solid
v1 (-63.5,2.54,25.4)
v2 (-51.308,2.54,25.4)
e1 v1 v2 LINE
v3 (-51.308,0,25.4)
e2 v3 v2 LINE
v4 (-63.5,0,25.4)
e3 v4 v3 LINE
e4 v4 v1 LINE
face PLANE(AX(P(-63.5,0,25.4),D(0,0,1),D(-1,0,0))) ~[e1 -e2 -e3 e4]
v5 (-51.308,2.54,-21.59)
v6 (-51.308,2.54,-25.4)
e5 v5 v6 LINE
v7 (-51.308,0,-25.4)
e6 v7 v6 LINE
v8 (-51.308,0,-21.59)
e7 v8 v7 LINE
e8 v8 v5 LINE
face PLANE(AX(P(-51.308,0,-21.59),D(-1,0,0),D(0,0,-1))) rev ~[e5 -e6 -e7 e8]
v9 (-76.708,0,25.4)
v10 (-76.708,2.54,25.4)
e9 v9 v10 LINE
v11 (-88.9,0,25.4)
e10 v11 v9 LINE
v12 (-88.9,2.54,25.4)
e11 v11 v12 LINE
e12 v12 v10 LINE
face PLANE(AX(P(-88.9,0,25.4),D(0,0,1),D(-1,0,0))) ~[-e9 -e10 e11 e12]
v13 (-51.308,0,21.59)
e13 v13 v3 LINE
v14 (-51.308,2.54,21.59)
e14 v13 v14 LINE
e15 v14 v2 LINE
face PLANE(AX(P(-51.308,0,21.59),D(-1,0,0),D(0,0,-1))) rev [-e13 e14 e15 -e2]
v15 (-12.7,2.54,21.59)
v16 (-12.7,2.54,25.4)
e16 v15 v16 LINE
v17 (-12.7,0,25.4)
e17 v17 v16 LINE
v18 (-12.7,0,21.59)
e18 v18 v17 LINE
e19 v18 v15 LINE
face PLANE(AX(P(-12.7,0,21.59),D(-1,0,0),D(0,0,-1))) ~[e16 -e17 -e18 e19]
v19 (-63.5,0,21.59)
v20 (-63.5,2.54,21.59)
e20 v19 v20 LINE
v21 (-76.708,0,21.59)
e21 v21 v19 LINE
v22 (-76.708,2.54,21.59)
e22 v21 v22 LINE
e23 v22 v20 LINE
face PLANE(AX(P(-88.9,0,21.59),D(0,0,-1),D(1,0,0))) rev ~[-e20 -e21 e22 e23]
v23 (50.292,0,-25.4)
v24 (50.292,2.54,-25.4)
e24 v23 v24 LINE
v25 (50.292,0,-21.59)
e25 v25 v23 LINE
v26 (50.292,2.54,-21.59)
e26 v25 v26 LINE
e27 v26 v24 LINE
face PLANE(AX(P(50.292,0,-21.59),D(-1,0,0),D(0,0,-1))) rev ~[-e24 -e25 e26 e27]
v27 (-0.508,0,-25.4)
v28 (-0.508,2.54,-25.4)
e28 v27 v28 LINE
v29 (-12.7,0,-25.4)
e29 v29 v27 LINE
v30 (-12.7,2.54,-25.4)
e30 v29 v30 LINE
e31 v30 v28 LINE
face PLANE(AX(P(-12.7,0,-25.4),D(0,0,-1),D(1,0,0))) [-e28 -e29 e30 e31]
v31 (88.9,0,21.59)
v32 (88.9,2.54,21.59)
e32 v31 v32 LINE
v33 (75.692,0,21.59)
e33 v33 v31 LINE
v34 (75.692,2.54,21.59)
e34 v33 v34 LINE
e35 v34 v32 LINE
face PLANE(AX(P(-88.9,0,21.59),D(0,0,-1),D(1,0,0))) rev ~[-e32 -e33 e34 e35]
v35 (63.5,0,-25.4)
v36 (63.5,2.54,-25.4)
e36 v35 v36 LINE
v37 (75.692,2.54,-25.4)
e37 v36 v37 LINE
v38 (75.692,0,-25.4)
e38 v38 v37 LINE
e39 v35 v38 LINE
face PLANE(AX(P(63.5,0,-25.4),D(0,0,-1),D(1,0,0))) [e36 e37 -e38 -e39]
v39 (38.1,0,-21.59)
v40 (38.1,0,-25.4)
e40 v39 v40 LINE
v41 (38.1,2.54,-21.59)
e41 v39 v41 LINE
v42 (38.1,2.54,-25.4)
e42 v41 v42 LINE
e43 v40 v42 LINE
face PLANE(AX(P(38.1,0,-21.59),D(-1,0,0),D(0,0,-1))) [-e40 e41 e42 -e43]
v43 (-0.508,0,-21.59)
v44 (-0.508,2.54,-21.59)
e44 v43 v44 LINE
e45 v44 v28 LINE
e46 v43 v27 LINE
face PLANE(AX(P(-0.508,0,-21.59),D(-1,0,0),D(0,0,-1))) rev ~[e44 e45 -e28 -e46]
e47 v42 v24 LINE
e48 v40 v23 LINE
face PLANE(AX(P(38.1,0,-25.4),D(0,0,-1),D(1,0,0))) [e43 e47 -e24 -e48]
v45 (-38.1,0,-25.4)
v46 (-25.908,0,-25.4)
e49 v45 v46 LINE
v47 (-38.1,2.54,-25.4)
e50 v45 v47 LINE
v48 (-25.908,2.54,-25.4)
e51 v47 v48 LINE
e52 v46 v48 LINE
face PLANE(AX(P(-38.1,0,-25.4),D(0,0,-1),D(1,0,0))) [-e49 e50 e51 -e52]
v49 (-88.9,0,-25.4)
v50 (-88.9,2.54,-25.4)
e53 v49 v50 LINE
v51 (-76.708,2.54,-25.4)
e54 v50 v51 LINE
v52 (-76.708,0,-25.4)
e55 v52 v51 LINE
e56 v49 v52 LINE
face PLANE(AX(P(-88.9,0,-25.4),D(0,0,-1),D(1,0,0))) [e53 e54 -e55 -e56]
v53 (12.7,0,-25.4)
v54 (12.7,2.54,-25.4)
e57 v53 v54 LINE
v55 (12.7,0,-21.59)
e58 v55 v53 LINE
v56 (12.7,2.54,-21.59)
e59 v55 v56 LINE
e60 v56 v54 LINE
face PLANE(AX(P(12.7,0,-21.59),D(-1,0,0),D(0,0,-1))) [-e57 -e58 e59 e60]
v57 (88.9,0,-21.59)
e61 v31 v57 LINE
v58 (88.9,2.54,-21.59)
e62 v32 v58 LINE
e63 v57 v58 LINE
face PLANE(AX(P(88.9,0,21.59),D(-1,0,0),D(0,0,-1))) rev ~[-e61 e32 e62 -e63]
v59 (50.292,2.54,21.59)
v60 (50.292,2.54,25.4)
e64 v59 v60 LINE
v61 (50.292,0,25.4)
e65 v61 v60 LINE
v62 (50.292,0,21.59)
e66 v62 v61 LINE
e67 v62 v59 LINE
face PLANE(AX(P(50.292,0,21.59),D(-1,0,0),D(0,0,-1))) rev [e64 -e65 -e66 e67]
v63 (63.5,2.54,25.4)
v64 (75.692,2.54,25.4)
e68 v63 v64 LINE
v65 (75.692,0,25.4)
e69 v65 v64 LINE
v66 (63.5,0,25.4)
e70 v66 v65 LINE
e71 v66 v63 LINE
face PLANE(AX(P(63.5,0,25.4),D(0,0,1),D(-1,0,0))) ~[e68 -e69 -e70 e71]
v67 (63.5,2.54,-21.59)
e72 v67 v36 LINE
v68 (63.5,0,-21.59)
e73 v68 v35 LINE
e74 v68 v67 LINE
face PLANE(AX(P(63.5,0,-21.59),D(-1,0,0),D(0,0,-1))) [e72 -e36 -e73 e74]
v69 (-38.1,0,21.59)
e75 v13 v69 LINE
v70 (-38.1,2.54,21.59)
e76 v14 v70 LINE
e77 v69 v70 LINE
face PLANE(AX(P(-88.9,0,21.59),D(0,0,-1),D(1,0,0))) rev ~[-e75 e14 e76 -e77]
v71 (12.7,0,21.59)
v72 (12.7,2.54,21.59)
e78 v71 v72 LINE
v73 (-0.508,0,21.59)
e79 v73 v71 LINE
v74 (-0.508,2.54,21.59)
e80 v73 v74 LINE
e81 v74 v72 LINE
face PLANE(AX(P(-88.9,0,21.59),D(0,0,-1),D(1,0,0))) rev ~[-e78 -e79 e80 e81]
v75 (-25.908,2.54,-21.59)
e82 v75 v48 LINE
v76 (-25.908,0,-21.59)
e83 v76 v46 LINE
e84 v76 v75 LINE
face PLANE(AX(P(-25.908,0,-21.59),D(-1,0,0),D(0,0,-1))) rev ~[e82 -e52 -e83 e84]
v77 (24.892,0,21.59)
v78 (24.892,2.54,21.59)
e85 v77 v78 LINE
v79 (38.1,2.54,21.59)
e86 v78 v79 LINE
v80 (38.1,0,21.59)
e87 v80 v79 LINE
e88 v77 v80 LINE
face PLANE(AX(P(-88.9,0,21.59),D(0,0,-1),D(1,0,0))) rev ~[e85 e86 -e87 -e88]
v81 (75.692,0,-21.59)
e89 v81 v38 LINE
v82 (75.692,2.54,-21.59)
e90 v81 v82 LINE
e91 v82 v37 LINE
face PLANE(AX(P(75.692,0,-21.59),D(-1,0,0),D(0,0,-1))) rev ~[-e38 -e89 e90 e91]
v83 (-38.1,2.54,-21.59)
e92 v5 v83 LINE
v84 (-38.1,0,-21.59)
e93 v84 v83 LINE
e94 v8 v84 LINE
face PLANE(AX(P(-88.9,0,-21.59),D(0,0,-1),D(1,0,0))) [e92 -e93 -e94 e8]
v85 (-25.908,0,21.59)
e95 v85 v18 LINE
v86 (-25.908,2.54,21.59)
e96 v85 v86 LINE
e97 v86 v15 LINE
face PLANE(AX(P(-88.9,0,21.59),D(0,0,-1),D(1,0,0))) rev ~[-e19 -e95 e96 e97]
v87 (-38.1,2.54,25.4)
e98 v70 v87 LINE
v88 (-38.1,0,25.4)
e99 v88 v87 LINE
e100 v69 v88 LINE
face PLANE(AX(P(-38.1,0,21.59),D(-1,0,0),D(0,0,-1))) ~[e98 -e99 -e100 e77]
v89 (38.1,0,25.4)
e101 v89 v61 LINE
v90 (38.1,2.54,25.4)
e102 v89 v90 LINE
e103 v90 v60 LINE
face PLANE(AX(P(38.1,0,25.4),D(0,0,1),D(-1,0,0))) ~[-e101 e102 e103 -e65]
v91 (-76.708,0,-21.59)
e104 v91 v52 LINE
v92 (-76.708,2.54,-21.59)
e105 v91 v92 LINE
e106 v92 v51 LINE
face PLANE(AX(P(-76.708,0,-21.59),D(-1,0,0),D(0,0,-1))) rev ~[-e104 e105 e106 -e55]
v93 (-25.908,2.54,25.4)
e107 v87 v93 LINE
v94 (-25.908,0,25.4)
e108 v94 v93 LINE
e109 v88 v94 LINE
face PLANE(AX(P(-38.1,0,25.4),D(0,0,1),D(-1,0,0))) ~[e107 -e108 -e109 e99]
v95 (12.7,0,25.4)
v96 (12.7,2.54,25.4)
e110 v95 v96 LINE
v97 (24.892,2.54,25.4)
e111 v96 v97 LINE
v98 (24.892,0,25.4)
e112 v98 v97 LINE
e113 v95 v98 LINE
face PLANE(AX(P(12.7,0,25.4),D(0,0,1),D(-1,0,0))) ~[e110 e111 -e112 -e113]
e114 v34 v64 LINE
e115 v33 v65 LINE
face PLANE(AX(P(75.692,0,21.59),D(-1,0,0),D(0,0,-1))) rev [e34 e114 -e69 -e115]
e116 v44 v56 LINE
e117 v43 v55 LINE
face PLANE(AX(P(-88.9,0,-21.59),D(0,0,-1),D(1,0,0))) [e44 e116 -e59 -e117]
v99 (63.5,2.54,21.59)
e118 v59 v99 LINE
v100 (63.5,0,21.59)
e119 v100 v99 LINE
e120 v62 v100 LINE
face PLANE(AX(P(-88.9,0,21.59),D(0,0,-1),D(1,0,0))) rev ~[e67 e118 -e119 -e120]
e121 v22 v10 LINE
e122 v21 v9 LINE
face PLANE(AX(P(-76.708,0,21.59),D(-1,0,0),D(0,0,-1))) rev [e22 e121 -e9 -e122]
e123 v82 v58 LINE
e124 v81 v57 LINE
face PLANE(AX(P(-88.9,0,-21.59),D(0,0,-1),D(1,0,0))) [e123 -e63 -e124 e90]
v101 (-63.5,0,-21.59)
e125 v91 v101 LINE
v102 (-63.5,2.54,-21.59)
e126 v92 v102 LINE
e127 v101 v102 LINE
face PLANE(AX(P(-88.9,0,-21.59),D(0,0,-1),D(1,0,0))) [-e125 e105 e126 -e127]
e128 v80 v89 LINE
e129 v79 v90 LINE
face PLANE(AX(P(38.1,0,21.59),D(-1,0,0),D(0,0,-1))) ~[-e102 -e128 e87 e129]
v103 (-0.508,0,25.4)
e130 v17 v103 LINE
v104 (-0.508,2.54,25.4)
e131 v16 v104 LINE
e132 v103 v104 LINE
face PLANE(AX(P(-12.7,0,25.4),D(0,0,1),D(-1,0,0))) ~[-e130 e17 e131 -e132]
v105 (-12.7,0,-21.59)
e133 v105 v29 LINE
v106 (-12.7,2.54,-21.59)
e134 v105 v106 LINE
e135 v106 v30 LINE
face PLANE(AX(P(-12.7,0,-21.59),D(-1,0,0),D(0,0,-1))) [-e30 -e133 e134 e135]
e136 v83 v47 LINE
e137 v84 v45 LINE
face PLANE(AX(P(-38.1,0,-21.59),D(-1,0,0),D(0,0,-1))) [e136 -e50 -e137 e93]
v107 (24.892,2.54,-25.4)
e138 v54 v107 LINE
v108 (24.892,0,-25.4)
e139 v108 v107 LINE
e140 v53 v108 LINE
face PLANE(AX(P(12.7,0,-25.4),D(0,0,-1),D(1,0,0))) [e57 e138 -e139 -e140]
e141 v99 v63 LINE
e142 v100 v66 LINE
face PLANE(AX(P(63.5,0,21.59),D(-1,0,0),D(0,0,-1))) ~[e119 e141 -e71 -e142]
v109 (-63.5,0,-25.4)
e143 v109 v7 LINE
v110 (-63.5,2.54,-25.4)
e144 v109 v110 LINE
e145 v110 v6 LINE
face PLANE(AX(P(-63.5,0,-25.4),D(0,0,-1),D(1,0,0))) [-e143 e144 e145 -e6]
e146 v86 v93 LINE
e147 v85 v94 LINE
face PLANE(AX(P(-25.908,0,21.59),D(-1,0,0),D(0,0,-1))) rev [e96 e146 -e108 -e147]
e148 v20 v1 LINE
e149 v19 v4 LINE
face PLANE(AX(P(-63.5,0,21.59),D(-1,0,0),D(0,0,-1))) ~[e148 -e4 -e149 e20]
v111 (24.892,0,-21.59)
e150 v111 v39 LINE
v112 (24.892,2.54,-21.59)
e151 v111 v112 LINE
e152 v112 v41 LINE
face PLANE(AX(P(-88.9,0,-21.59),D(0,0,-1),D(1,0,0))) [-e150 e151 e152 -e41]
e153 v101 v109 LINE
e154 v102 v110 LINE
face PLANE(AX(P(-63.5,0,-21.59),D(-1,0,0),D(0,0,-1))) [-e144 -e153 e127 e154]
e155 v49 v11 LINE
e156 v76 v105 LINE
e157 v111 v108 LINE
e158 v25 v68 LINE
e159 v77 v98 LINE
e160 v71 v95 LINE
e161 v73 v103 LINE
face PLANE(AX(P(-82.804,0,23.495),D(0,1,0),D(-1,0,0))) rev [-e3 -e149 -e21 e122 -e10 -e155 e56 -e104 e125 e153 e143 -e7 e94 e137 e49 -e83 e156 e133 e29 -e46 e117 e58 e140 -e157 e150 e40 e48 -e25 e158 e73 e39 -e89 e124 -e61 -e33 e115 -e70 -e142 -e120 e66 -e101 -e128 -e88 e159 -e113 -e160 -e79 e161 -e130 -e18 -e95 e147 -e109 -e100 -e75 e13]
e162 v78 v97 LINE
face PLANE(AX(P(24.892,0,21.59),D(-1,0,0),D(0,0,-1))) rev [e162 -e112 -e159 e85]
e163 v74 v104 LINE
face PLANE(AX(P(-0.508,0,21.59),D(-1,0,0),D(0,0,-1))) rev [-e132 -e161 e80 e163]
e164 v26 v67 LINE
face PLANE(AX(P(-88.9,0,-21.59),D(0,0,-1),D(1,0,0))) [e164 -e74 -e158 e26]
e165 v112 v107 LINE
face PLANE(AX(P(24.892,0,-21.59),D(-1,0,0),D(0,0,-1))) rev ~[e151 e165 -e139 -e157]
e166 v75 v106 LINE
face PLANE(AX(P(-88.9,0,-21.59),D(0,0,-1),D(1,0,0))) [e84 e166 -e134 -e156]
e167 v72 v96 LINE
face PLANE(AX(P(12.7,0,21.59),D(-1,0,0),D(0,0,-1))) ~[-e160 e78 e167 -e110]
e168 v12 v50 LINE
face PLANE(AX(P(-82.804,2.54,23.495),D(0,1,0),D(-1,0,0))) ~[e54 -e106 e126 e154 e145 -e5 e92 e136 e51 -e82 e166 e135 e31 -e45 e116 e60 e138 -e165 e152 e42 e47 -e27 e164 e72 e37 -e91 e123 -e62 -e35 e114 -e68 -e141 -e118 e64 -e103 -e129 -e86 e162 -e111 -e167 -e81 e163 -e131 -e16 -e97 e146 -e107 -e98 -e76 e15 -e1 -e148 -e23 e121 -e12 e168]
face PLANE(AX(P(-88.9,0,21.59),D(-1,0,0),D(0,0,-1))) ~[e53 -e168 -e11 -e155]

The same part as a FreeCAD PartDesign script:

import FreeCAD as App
import Part
import Sketcher
Q = App.Units.Quantity


def add_polygon(sketch, points):
    """Adds a closed chain of lines whose ends are joined by coincident constraints."""
    first, n = sketch.GeometryCount, len(points)
    for a, b in zip(points, points[1:] + points[:1]):
        sketch.addGeometry(Part.LineSegment(App.Vector(*a, 0), App.Vector(*b, 0)), False)
    for i in range(n):
        sketch.addConstraint(Sketcher.Constraint("Coincident", first + i, 2, first + (i + 1) % n, 1))

doc = App.newDocument("Part")
body = doc.addObject("PartDesign::Body", "Body")

sketch1 = body.newObject("Sketcher::SketchObject", "Sketch")
sketch1.AttachmentSupport = (doc.getObject("XZ_Plane"), [""])
sketch1.MapMode = "FlatFace"
add_polygon(sketch1, [(-89, -22), (-89, 22), (89, 22), (89, -22)])
sketch1.addConstraint(Sketcher.Constraint("Vertical", 0))
sketch1.addConstraint(Sketcher.Constraint("Horizontal", 1))
sketch1.addConstraint(Sketcher.Constraint("Vertical", 2))
sketch1.addConstraint(Sketcher.Constraint("Horizontal", 3))
sketch1.addConstraint(Sketcher.Constraint("Symmetric", 0, 2, 2, 2, -1, 1))
sketch1.addConstraint(Sketcher.Constraint("DistanceX", 1, 1, 1, 2, Q("7 in")))
sketch1.addConstraint(Sketcher.Constraint("DistanceY", 0, 1, 0, 2, Q("1.7 in")))
pad1 = body.newObject("PartDesign::Pad", "Pad")
pad1.Profile = sketch1
pad1.Length = Q("0.1 in")
pad1.Reversed = True

sketch2 = body.newObject("Sketcher::SketchObject", "Sketch001")
sketch2.AttachmentSupport = (doc.getObject("XZ_Plane"), [""])
sketch2.MapMode = "FlatFace"
add_polygon(sketch2, [(-63.5, -25.4), (-63.5, -21.6), (-51.3, -21.6), (-51.3, -25.4)])
add_polygon(sketch2, [(-88.9, -25.4), (-88.9, -21.6), (-76.7, -21.6), (-76.7, -25.4)])
add_polygon(sketch2, [(-38.1, -25.4), (-38.1, -21.6), (-25.9, -21.6), (-25.9, -25.4)])
add_polygon(sketch2, [(-12.7, -25.4), (-12.7, -21.6), (-0.5, -21.6), (-0.5, -25.4)])
add_polygon(sketch2, [(12.7, -25.4), (12.7, -21.6), (24.9, -21.6), (24.9, -25.4)])
add_polygon(sketch2, [(38.1, -25.4), (38.1, -21.6), (50.3, -21.6), (50.3, -25.4)])
add_polygon(sketch2, [(63.5, -25.4), (63.5, -21.6), (75.7, -21.6), (75.7, -25.4)])
sketch2.addConstraint(Sketcher.Constraint("Vertical", 0))
sketch2.addConstraint(Sketcher.Constraint("Horizontal", 1))
sketch2.addConstraint(Sketcher.Constraint("Vertical", 2))
sketch2.addConstraint(Sketcher.Constraint("Horizontal", 3))
sketch2.addConstraint(Sketcher.Constraint("Vertical", 4))
sketch2.addConstraint(Sketcher.Constraint("Horizontal", 5))
sketch2.addConstraint(Sketcher.Constraint("Vertical", 6))
sketch2.addConstraint(Sketcher.Constraint("Horizontal", 7))
sketch2.addConstraint(Sketcher.Constraint("Vertical", 8))
sketch2.addConstraint(Sketcher.Constraint("Horizontal", 9))
sketch2.addConstraint(Sketcher.Constraint("Vertical", 10))
sketch2.addConstraint(Sketcher.Constraint("Horizontal", 11))
sketch2.addConstraint(Sketcher.Constraint("Vertical", 12))
sketch2.addConstraint(Sketcher.Constraint("Horizontal", 13))
sketch2.addConstraint(Sketcher.Constraint("Vertical", 14))
sketch2.addConstraint(Sketcher.Constraint("Horizontal", 15))
sketch2.addConstraint(Sketcher.Constraint("Vertical", 16))
sketch2.addConstraint(Sketcher.Constraint("Horizontal", 17))
sketch2.addConstraint(Sketcher.Constraint("Vertical", 18))
sketch2.addConstraint(Sketcher.Constraint("Horizontal", 19))
sketch2.addConstraint(Sketcher.Constraint("Vertical", 20))
sketch2.addConstraint(Sketcher.Constraint("Horizontal", 21))
sketch2.addConstraint(Sketcher.Constraint("Vertical", 22))
sketch2.addConstraint(Sketcher.Constraint("Horizontal", 23))
sketch2.addConstraint(Sketcher.Constraint("Vertical", 24))
sketch2.addConstraint(Sketcher.Constraint("Horizontal", 25))
sketch2.addConstraint(Sketcher.Constraint("Vertical", 26))
sketch2.addConstraint(Sketcher.Constraint("Horizontal", 27))
sketch2.addConstraint(Sketcher.Constraint("Symmetric", 12, 2, 16, 2, -2))
sketch2.addConstraint(Sketcher.Constraint("Symmetric", 8, 2, 20, 2, -2))
sketch2.addConstraint(Sketcher.Constraint("Symmetric", 0, 2, 24, 2, -2))
sketch2.addConstraint(Sketcher.Constraint("Horizontal", 1, 2, 4, 2))
sketch2.addConstraint(Sketcher.Constraint("Horizontal", 3, 2, 6, 2))
sketch2.addConstraint(Sketcher.Constraint("Horizontal", 5, 2, 8, 2))
sketch2.addConstraint(Sketcher.Constraint("Horizontal", 7, 2, 10, 2))
sketch2.addConstraint(Sketcher.Constraint("Horizontal", 9, 2, 12, 2))
sketch2.addConstraint(Sketcher.Constraint("Horizontal", 11, 2, 14, 2))
sketch2.addConstraint(Sketcher.Constraint("Horizontal", 15, 2, 18, 2))
sketch2.addConstraint(Sketcher.Constraint("Horizontal", 19, 2, 22, 2))
sketch2.addConstraint(Sketcher.Constraint("Horizontal", 23, 2, 26, 2))
sketch2.addConstraint(Sketcher.Constraint("Equal", 3, 5))
sketch2.addConstraint(Sketcher.Constraint("Equal", 7, 9))
sketch2.addConstraint(Sketcher.Constraint("Equal", 11, 13))
sketch2.addConstraint(Sketcher.Constraint("Equal", 15, 17))
sketch2.addConstraint(Sketcher.Constraint("Equal", 19, 21))
sketch2.addConstraint(Sketcher.Constraint("Equal", 23, 25))
sketch2.addConstraint(Sketcher.Constraint("DistanceY", 2, 2, -1, 1, Q("1 in")))
sketch2.addConstraint(Sketcher.Constraint("DistanceX", 4, 2, 0, 2, Q("1 in")))
sketch2.addConstraint(Sketcher.Constraint("DistanceX", 0, 2, 8, 2, Q("1 in")))
sketch2.addConstraint(Sketcher.Constraint("DistanceX", 8, 2, 12, 2, Q("1 in")))
sketch2.addConstraint(Sketcher.Constraint("DistanceX", 12, 2, 16, 2, Q("1 in")))
sketch2.addConstraint(Sketcher.Constraint("DistanceX", 1, 1, 1, 2, Q("0.48 in")))
sketch2.addConstraint(Sketcher.Constraint("DistanceY", 0, 1, 0, 2, Q("0.15 in")))
pad2 = body.newObject("PartDesign::Pad", "Pad001")
pad2.Profile = sketch2
pad2.Length = Q("0.1 in")
pad2.Reversed = True
doc.recompute()

mirrored = body.newObject("PartDesign::Mirrored", "Mirrored")
mirrored.Originals = [pad2]
mirrored.MirrorPlane = (doc.getObject("XY_Plane"), [""])
body.Tip = mirrored

doc.recompute()
